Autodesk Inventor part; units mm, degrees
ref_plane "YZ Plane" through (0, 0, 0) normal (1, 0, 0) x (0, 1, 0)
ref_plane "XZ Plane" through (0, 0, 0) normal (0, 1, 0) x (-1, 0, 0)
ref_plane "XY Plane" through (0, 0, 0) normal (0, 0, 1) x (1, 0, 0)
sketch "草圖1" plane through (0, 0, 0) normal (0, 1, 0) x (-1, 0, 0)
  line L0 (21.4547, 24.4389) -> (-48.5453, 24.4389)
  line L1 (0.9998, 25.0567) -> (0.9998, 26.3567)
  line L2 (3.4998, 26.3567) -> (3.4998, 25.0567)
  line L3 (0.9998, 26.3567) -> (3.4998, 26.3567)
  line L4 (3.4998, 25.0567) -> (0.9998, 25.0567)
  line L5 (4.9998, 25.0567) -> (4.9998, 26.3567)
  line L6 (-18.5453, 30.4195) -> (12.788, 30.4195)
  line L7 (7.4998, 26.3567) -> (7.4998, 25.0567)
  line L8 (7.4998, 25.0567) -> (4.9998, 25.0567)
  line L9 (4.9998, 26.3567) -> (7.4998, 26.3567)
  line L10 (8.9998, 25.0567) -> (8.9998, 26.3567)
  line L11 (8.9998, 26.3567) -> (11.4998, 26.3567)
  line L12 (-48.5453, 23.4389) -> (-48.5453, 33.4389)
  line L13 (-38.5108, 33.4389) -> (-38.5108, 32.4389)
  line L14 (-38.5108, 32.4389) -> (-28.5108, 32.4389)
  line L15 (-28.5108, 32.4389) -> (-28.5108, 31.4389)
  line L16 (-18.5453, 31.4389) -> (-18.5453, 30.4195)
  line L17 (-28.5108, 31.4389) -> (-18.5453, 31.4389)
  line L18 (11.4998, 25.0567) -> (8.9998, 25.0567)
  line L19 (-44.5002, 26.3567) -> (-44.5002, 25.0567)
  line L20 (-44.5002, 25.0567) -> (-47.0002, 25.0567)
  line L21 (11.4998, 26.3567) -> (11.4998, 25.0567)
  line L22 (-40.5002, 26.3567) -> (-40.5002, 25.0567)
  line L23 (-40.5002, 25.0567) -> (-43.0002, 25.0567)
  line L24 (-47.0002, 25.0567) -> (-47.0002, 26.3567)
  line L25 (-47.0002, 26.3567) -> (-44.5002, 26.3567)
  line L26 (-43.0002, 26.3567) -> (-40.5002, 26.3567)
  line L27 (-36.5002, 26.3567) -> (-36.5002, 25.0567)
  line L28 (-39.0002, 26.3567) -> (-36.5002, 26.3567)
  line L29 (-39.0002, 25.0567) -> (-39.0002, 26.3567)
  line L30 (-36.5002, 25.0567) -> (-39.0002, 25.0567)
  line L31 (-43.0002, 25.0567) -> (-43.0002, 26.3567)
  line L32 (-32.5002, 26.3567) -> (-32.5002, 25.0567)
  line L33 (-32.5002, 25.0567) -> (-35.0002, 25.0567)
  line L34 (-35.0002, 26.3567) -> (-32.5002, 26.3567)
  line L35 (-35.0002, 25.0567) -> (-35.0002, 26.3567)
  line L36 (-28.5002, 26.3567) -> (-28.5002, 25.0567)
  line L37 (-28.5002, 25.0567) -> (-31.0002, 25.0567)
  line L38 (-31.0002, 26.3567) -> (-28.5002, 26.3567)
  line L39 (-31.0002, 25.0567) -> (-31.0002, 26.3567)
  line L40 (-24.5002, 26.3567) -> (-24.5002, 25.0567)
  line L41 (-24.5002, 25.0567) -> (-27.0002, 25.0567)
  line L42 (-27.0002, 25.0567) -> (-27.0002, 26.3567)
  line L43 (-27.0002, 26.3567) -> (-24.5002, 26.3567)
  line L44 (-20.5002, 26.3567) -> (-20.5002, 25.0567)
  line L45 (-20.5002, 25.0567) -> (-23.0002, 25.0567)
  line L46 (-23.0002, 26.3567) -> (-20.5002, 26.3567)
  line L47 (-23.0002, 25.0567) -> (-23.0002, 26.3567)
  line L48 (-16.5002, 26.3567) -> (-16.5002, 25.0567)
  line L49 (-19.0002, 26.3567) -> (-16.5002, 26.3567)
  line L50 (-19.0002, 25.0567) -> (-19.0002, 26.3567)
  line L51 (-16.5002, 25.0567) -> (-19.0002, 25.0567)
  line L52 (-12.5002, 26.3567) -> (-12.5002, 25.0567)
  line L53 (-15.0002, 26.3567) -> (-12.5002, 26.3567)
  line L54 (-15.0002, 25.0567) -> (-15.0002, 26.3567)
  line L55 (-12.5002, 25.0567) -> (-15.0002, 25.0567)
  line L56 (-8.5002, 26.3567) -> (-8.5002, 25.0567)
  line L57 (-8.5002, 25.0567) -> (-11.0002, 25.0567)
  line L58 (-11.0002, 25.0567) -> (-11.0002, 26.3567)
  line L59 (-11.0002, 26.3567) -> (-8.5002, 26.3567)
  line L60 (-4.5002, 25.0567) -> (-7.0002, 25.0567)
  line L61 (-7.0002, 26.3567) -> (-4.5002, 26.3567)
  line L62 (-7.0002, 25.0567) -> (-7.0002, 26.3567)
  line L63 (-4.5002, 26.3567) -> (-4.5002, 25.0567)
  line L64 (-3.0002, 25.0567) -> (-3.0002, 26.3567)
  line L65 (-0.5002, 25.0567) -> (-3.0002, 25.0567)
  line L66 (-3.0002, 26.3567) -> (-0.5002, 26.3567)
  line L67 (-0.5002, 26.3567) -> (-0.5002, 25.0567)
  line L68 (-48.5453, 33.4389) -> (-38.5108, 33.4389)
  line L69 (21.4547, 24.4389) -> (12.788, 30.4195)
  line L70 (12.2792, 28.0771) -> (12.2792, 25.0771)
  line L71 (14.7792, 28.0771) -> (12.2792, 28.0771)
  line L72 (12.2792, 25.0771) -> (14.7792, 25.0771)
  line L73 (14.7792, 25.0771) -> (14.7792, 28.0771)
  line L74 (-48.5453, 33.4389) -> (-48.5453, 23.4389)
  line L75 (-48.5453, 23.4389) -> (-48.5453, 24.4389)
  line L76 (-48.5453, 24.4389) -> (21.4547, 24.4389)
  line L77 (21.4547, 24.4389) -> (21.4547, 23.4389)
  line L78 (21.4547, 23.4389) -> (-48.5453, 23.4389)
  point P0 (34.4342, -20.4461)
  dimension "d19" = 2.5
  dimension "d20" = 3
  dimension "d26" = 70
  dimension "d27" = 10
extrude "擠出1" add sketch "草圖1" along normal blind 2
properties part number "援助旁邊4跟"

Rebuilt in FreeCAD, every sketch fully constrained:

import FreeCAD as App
import Part
import Sketcher
from FreeCAD import Vector


def add_polygon(sketch, points):
    """Adds a closed chain of lines whose ends are joined by coincident constraints."""
    first, n = sketch.GeometryCount, len(points)
    for a, b in zip(points, points[1:] + points[:1]):
        sketch.addGeometry(Part.LineSegment(App.Vector(*a, 0), App.Vector(*b, 0)), False)
    for i in range(n):
        sketch.addConstraint(Sketcher.Constraint("Coincident", first + i, 2, first + (i + 1) % n, 1))

doc = App.newDocument("Part")
params = doc.addObject("Spreadsheet::Sheet", "Params")
for row, (alias, value) in enumerate([
    ("sketch1_width", "10 mm"),
    ("sketch1_width2", "70 mm"),
    ("sketch1_height", "3 mm"),
    ("sketch1_width3", "2.5 mm"),
    ("sketch1_height2", "1 mm"),
    ("pad1_length", "2 mm"),
], start=1):
    params.set(f"A{row}", alias)
    params.set(f"B{row}", "=" + value)
    params.setAlias(f"B{row}", alias)

body = doc.addObject("PartDesign::Body", "Body")

sketch1 = body.newObject("Sketcher::SketchObject", "Sketch")
sketch1.AttachmentSupport = (doc.getObject("XZ_Plane"), [""])
sketch1.MapMode = "FlatFace"
add_polygon(sketch1, [(-21.5, 23.4), (-21.5, 24.4), (-12.8, 30.4), (18.5, 30.4), (18.5, 31.4), (28.5, 31.4), (28.5, 32.4), (38.5, 32.4), (38.5, 33.4), (48.5, 33.4), (48.5, 23.4)])
add_polygon(sketch1, [(-12.3, 28.1), (-14.8, 28.1), (-14.8, 25.1), (-12.3, 25.1)])
add_polygon(sketch1, [(47, 26.4), (44.5, 26.4), (44.5, 25.1), (47, 25.1)])
add_polygon(sketch1, [(43, 26.4), (40.5, 26.4), (40.5, 25.1), (43, 25.1)])
add_polygon(sketch1, [(39, 26.4), (36.5, 26.4), (36.5, 25.1), (39, 25.1)])
add_polygon(sketch1, [(35, 26.4), (32.5, 26.4), (32.5, 25.1), (35, 25.1)])
add_polygon(sketch1, [(31, 26.4), (28.5, 26.4), (28.5, 25.1), (31, 25.1)])
add_polygon(sketch1, [(27, 26.4), (24.5, 26.4), (24.5, 25.1), (27, 25.1)])
add_polygon(sketch1, [(23, 26.4), (20.5, 26.4), (20.5, 25.1), (23, 25.1)])
add_polygon(sketch1, [(19, 26.4), (16.5, 26.4), (16.5, 25.1), (19, 25.1)])
add_polygon(sketch1, [(15, 26.4), (12.5, 26.4), (12.5, 25.1), (15, 25.1)])
add_polygon(sketch1, [(11, 26.4), (8.5, 26.4), (8.5, 25.1), (11, 25.1)])
add_polygon(sketch1, [(4.5, 26.4), (4.5, 25.1), (7, 25.1), (7, 26.4)])
add_polygon(sketch1, [(0.5, 25.1), (3, 25.1), (3, 26.4), (0.5, 26.4)])
add_polygon(sketch1, [(-3.5, 25.1), (-1, 25.1), (-1, 26.4), (-3.5, 26.4)])
add_polygon(sketch1, [(-7.5, 25.1), (-5, 25.1), (-5, 26.4), (-7.5, 26.4)])
add_polygon(sketch1, [(-11.5, 25.1), (-9, 25.1), (-9, 26.4), (-11.5, 26.4)])
sketch1.addConstraint([
    Sketcher.Constraint("Vertical", 0),
    Sketcher.Constraint("Horizontal", 2),
    Sketcher.Constraint("Vertical", 3),
    Sketcher.Constraint("Horizontal", 4),
    Sketcher.Constraint("Vertical", 5),
    Sketcher.Constraint("Horizontal", 6),
    Sketcher.Constraint("Vertical", 7),
    Sketcher.Constraint("Horizontal", 8),
    Sketcher.Constraint("Vertical", 9),
    Sketcher.Constraint("Horizontal", 10),
    Sketcher.Constraint("Horizontal", 11),
    Sketcher.Constraint("Vertical", 12),
    Sketcher.Constraint("Horizontal", 13),
    Sketcher.Constraint("Vertical", 14),
    Sketcher.Constraint("Horizontal", 15),
    Sketcher.Constraint("Vertical", 16),
    Sketcher.Constraint("Horizontal", 17),
    Sketcher.Constraint("Vertical", 18),
    Sketcher.Constraint("Horizontal", 19),
    Sketcher.Constraint("Vertical", 20),
    Sketcher.Constraint("Horizontal", 21),
    Sketcher.Constraint("Vertical", 22),
    Sketcher.Constraint("Horizontal", 23),
    Sketcher.Constraint("Vertical", 24),
    Sketcher.Constraint("Horizontal", 25),
    Sketcher.Constraint("Vertical", 26),
    Sketcher.Constraint("Horizontal", 27),
    Sketcher.Constraint("Vertical", 28),
    Sketcher.Constraint("Horizontal", 29),
    Sketcher.Constraint("Vertical", 30),
    Sketcher.Constraint("Horizontal", 31),
    Sketcher.Constraint("Vertical", 32),
    Sketcher.Constraint("Horizontal", 33),
    Sketcher.Constraint("Vertical", 34),
    Sketcher.Constraint("Horizontal", 35),
    Sketcher.Constraint("Vertical", 36),
    Sketcher.Constraint("Horizontal", 37),
    Sketcher.Constraint("Vertical", 38),
    Sketcher.Constraint("Horizontal", 39),
    Sketcher.Constraint("Vertical", 40),
    Sketcher.Constraint("Horizontal", 41),
    Sketcher.Constraint("Vertical", 42),
    Sketcher.Constraint("Horizontal", 43),
    Sketcher.Constraint("Vertical", 44),
    Sketcher.Constraint("Horizontal", 45),
    Sketcher.Constraint("Vertical", 46),
    Sketcher.Constraint("Horizontal", 47),
    Sketcher.Constraint("Vertical", 48),
    Sketcher.Constraint("Horizontal", 49),
    Sketcher.Constraint("Vertical", 50),
    Sketcher.Constraint("Horizontal", 51),
    Sketcher.Constraint("Vertical", 52),
    Sketcher.Constraint("Horizontal", 53),
    Sketcher.Constraint("Vertical", 54),
    Sketcher.Constraint("Vertical", 55),
    Sketcher.Constraint("Horizontal", 56),
    Sketcher.Constraint("Vertical", 57),
    Sketcher.Constraint("Horizontal", 58),
    Sketcher.Constraint("Horizontal", 59),
    Sketcher.Constraint("Vertical", 60),
    Sketcher.Constraint("Horizontal", 61),
    Sketcher.Constraint("Vertical", 62),
    Sketcher.Constraint("Horizontal", 63),
    Sketcher.Constraint("Vertical", 64),
    Sketcher.Constraint("Horizontal", 65),
    Sketcher.Constraint("Vertical", 66),
    Sketcher.Constraint("Horizontal", 67),
    Sketcher.Constraint("Vertical", 68),
    Sketcher.Constraint("Horizontal", 69),
    Sketcher.Constraint("Vertical", 70),
    Sketcher.Constraint("Horizontal", 71),
    Sketcher.Constraint("Vertical", 72),
    Sketcher.Constraint("Horizontal", 73),
    Sketcher.Constraint("Vertical", 74),
    Sketcher.Constraint("Horizontal", 18, 2, 19, 2),
    Sketcher.Constraint("Horizontal", 17, 2, 20, 2),
    Sketcher.Constraint("Horizontal", 22, 2, 23, 2),
    Sketcher.Constraint("Horizontal", 21, 2, 24, 2),
    Sketcher.Constraint("Horizontal", 26, 2, 27, 2),
    Sketcher.Constraint("Horizontal", 25, 2, 28, 2),
    Sketcher.Constraint("Horizontal", 30, 2, 31, 2),
    Sketcher.Constraint("Horizontal", 29, 2, 32, 2),
    Sketcher.Constraint("Horizontal", 34, 2, 35, 2),
    Sketcher.Constraint("Horizontal", 33, 2, 36, 2),
    Sketcher.Constraint("Horizontal", 38, 2, 39, 2),
    Sketcher.Constraint("Horizontal", 37, 2, 40, 2),
    Sketcher.Constraint("Horizontal", 42, 2, 43, 2),
    Sketcher.Constraint("Horizontal", 41, 2, 44, 2),
    Sketcher.Constraint("Horizontal", 46, 2, 47, 2),
    Sketcher.Constraint("Horizontal", 45, 2, 48, 2),
    Sketcher.Constraint("Horizontal", 50, 2, 51, 2),
    Sketcher.Constraint("Horizontal", 49, 2, 52, 2),
    Sketcher.Constraint("Horizontal", 53, 2, 55, 2),
    Sketcher.Constraint("Horizontal", 54, 2, 57, 2),
    Sketcher.Constraint("Horizontal", 56, 2, 59, 2),
    Sketcher.Constraint("Horizontal", 58, 2, 60, 2),
    Sketcher.Constraint("Horizontal", 62, 2, 63, 2),
    Sketcher.Constraint("Horizontal", 61, 2, 64, 2),
    Sketcher.Constraint("Horizontal", 66, 2, 67, 2),
    Sketcher.Constraint("Horizontal", 65, 2, 68, 2),
    Sketcher.Constraint("Horizontal", 70, 2, 71, 2),
    Sketcher.Constraint("Horizontal", 69, 2, 72, 2),
    Sketcher.Constraint("Equal", 13, 15),
    Sketcher.Constraint("Equal", 17, 19),
    Sketcher.Constraint("Equal", 21, 23),
    Sketcher.Constraint("Equal", 25, 27),
    Sketcher.Constraint("Equal", 29, 31),
    Sketcher.Constraint("Equal", 33, 35),
    Sketcher.Constraint("Equal", 37, 39),
    Sketcher.Constraint("Equal", 41, 43),
    Sketcher.Constraint("Equal", 45, 47),
    Sketcher.Constraint("Equal", 49, 51),
    Sketcher.Constraint("Equal", 53, 56),
    Sketcher.Constraint("Equal", 58, 59),
    Sketcher.Constraint("Equal", 61, 63),
    Sketcher.Constraint("Equal", 65, 67),
    Sketcher.Constraint("Equal", 69, 71),
    Sketcher.Constraint("Equal", 0, 5),
    Sketcher.Constraint("Equal", 5, 7),
    Sketcher.Constraint("Equal", 6, 9),
    Sketcher.Constraint("DistanceX", 6, 1, 6, 2, 10.0),
    Sketcher.Constraint("DistanceX", 10, 2, 10, 1, 70.0),
    Sketcher.Constraint("DistanceY", 12, 2, 12, 1, 3.0),
    Sketcher.Constraint("DistanceX", 11, 2, 11, 1, 2.5),
    Sketcher.Constraint("DistanceY", 0, 1, 0, 2, 1.0),
    Sketcher.Constraint("DistanceY", 16, 2, 16, 1, 1.3),
    Sketcher.Constraint("DistanceX", -1, 1, 59, 2, 3.0002),
    Sketcher.Constraint("Distance", 1, 10.53),
    Sketcher.Constraint("DistanceX", 2, 1, 2, 2, 31.3333),
    Sketcher.Constraint("DistanceX", 4, 1, 4, 2, 9.9655),
    Sketcher.Constraint("DistanceX", 8, 1, 8, 2, 10.0345),
    Sketcher.Constraint("DistanceY", -1, 1, 0, 2, 24.439),
    Sketcher.Constraint("DistanceX", 1, 2, -1, 1, 12.788),
    Sketcher.Constraint("DistanceY", -1, 1, 11, 2, 28.077),
    Sketcher.Constraint("DistanceX", 11, 2, -1, 1, 14.7792),
    Sketcher.Constraint("DistanceX", -1, 1, 15, 2, 44.5002),
    Sketcher.Constraint("DistanceY", -1, 1, 15, 2, 26.3567),
    Sketcher.Constraint("DistanceX", -1, 1, 19, 2, 40.5002),
    Sketcher.Constraint("DistanceX", -1, 1, 23, 2, 36.5002),
    Sketcher.Constraint("DistanceX", -1, 1, 27, 2, 32.5002),
    Sketcher.Constraint("DistanceX", -1, 1, 31, 2, 28.5002),
    Sketcher.Constraint("DistanceX", -1, 1, 35, 2, 24.5002),
    Sketcher.Constraint("DistanceX", -1, 1, 39, 2, 20.5002),
    Sketcher.Constraint("DistanceX", -1, 1, 43, 2, 16.5002),
    Sketcher.Constraint("DistanceX", -1, 1, 47, 2, 12.5002),
    Sketcher.Constraint("DistanceX", -1, 1, 51, 2, 8.5002),
    Sketcher.Constraint("DistanceX", -1, 1, 55, 2, 4.5002),
    Sketcher.Constraint("DistanceX", 63, 2, -1, 1, 0.9998),
    Sketcher.Constraint("DistanceX", 67, 2, -1, 1, 4.9998),
    Sketcher.Constraint("DistanceX", 71, 2, -1, 1, 8.9998),
])
sketch1.setExpression("Constraints[195]", "Params.sketch1_width")
sketch1.setExpression("Constraints[196]", "Params.sketch1_width2")
sketch1.setExpression("Constraints[197]", "Params.sketch1_height")
sketch1.setExpression("Constraints[198]", "Params.sketch1_width3")
sketch1.setExpression("Constraints[199]", "Params.sketch1_height2")
pad1 = body.newObject("PartDesign::Pad", "Pad")
pad1.Profile = sketch1
pad1.setExpression("Length", "Params.pad1_length")
pad1.Reversed = True

doc.recompute()
